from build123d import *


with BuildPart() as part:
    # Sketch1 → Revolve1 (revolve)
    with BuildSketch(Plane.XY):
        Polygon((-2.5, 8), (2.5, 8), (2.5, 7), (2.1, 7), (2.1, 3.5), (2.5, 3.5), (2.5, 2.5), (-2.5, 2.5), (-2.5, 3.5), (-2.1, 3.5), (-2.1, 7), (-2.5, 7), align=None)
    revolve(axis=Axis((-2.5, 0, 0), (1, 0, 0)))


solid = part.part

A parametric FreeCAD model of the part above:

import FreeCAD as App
import Part
import Sketcher
from FreeCAD import Vector
Q = App.Units.Quantity

doc = App.newDocument("Part")
params = doc.addObject("Spreadsheet::Sheet", "Params")
for row, (alias, value) in enumerate([
    ("sketch1_width", "5 mm"),
    ("sketch1_height", "1 mm"),
    ("sketch1_width2", "0.4 mm"),
    ("sketch1_height2", "3.5 mm"),
    ("revolution_angle", "360 deg"),
], start=1):
    params.set(f"A{row}", alias)
    params.set(f"B{row}", "=" + value)
    params.setAlias(f"B{row}", alias)

body = doc.addObject("PartDesign::Body", "Body")

sketch1 = body.newObject("Sketcher::SketchObject", "Sketch")
sketch1.AttachmentSupport = (doc.getObject("XY_Plane"), [""])
sketch1.MapMode = "FlatFace"
sketch1.addGeometry(Part.LineSegment(Vector(2.5, 8, 0), Vector(-2.5, 8, 0)), False)
sketch1.addGeometry(Part.LineSegment(Vector(-2.5, 8, 0), Vector(-2.5, 7, 0)), False)
sketch1.addGeometry(Part.LineSegment(Vector(-2.5, 7, 0), Vector(-2.1, 7, 0)), False)
sketch1.addGeometry(Part.LineSegment(Vector(-2.1, 7, 0), Vector(-2.1, 3.5, 0)), False)
sketch1.addGeometry(Part.LineSegment(Vector(-2.1, 3.5, 0), Vector(-2.5, 3.5, 0)), False)
sketch1.addGeometry(Part.LineSegment(Vector(-2.5, 3.5, 0), Vector(-2.5, 2.5, 0)), False)
sketch1.addGeometry(Part.LineSegment(Vector(-2.5, 2.5, 0), Vector(2.5, 2.5, 0)), False)
sketch1.addGeometry(Part.LineSegment(Vector(2.5, 2.5, 0), Vector(2.5, 3.5, 0)), False)
sketch1.addGeometry(Part.LineSegment(Vector(2.5, 3.5, 0), Vector(2.1, 3.5, 0)), False)
sketch1.addGeometry(Part.LineSegment(Vector(2.1, 3.5, 0), Vector(2.1, 7, 0)), False)
sketch1.addGeometry(Part.LineSegment(Vector(2.1, 7, 0), Vector(2.5, 7, 0)), False)
sketch1.addGeometry(Part.LineSegment(Vector(2.5, 7, 0), Vector(2.5, 8, 0)), False)
sketch1.addConstraint(Sketcher.Constraint("Coincident", 0, 2, 1, 1))
sketch1.addConstraint(Sketcher.Constraint("Coincident", 1, 2, 2, 1))
sketch1.addConstraint(Sketcher.Constraint("Coincident", 2, 2, 3, 1))
sketch1.addConstraint(Sketcher.Constraint("Coincident", 3, 2, 4, 1))
sketch1.addConstraint(Sketcher.Constraint("Coincident", 4, 2, 5, 1))
sketch1.addConstraint(Sketcher.Constraint("Coincident", 5, 2, 6, 1))
sketch1.addConstraint(Sketcher.Constraint("Coincident", 6, 2, 7, 1))
sketch1.addConstraint(Sketcher.Constraint("Coincident", 7, 2, 8, 1))
sketch1.addConstraint(Sketcher.Constraint("Coincident", 8, 2, 9, 1))
sketch1.addConstraint(Sketcher.Constraint("Coincident", 9, 2, 10, 1))
sketch1.addConstraint(Sketcher.Constraint("Coincident", 10, 2, 11, 1))
sketch1.addConstraint(Sketcher.Constraint("Coincident", 11, 2, 0, 1))
sketch1.addConstraint(Sketcher.Constraint("Horizontal", 0))
sketch1.addConstraint(Sketcher.Constraint("Vertical", 1))
sketch1.addConstraint(Sketcher.Constraint("Horizontal", 2))
sketch1.addConstraint(Sketcher.Constraint("Vertical", 3))
sketch1.addConstraint(Sketcher.Constraint("Horizontal", 4))
sketch1.addConstraint(Sketcher.Constraint("Vertical", 5))
sketch1.addConstraint(Sketcher.Constraint("Horizontal", 6))
sketch1.addConstraint(Sketcher.Constraint("Vertical", 7))
sketch1.addConstraint(Sketcher.Constraint("Horizontal", 8))
sketch1.addConstraint(Sketcher.Constraint("Vertical", 9))
sketch1.addConstraint(Sketcher.Constraint("Horizontal", 10))
sketch1.addConstraint(Sketcher.Constraint("Vertical", 11))
sketch1.addConstraint(Sketcher.Constraint("Symmetric", 4, 2, 7, 2, -2))
sketch1.addConstraint(Sketcher.Constraint("Symmetric", 2, 2, 9, 2, -2))
sketch1.addConstraint(Sketcher.Constraint("Vertical", 1, 2, 4, 2))
sketch1.addConstraint(Sketcher.Constraint("Vertical", 7, 2, 10, 2))
sketch1.addConstraint(Sketcher.Constraint("Equal", 1, 5))
sketch1.addConstraint(Sketcher.Constraint("DistanceX", 0, 2, 0, 1, Q("5 mm")))
sketch1.addConstraint(Sketcher.Constraint("DistanceY", 1, 2, 1, 1, Q("1 mm")))
sketch1.addConstraint(Sketcher.Constraint("DistanceX", 2, 1, 2, 2, Q("0.4 mm")))
sketch1.addConstraint(Sketcher.Constraint("DistanceY", 3, 2, 3, 1, Q("3.5 mm")))
sketch1.addConstraint(Sketcher.Constraint("DistanceY", -1, 1, 0, 2, Q("8 mm")))
sketch1.setExpression("Constraints[29]", "Params.sketch1_width")
sketch1.setExpression("Constraints[30]", "Params.sketch1_height")
sketch1.setExpression("Constraints[31]", "Params.sketch1_width2")
sketch1.setExpression("Constraints[32]", "Params.sketch1_height2")
revolution = body.newObject("PartDesign::Revolution", "Revolution")
revolution.Profile = sketch1
revolution.ReferenceAxis = (sketch1, ["H_Axis"])
revolution.setExpression("Angle", "Params.revolution_angle")

doc.recompute()
